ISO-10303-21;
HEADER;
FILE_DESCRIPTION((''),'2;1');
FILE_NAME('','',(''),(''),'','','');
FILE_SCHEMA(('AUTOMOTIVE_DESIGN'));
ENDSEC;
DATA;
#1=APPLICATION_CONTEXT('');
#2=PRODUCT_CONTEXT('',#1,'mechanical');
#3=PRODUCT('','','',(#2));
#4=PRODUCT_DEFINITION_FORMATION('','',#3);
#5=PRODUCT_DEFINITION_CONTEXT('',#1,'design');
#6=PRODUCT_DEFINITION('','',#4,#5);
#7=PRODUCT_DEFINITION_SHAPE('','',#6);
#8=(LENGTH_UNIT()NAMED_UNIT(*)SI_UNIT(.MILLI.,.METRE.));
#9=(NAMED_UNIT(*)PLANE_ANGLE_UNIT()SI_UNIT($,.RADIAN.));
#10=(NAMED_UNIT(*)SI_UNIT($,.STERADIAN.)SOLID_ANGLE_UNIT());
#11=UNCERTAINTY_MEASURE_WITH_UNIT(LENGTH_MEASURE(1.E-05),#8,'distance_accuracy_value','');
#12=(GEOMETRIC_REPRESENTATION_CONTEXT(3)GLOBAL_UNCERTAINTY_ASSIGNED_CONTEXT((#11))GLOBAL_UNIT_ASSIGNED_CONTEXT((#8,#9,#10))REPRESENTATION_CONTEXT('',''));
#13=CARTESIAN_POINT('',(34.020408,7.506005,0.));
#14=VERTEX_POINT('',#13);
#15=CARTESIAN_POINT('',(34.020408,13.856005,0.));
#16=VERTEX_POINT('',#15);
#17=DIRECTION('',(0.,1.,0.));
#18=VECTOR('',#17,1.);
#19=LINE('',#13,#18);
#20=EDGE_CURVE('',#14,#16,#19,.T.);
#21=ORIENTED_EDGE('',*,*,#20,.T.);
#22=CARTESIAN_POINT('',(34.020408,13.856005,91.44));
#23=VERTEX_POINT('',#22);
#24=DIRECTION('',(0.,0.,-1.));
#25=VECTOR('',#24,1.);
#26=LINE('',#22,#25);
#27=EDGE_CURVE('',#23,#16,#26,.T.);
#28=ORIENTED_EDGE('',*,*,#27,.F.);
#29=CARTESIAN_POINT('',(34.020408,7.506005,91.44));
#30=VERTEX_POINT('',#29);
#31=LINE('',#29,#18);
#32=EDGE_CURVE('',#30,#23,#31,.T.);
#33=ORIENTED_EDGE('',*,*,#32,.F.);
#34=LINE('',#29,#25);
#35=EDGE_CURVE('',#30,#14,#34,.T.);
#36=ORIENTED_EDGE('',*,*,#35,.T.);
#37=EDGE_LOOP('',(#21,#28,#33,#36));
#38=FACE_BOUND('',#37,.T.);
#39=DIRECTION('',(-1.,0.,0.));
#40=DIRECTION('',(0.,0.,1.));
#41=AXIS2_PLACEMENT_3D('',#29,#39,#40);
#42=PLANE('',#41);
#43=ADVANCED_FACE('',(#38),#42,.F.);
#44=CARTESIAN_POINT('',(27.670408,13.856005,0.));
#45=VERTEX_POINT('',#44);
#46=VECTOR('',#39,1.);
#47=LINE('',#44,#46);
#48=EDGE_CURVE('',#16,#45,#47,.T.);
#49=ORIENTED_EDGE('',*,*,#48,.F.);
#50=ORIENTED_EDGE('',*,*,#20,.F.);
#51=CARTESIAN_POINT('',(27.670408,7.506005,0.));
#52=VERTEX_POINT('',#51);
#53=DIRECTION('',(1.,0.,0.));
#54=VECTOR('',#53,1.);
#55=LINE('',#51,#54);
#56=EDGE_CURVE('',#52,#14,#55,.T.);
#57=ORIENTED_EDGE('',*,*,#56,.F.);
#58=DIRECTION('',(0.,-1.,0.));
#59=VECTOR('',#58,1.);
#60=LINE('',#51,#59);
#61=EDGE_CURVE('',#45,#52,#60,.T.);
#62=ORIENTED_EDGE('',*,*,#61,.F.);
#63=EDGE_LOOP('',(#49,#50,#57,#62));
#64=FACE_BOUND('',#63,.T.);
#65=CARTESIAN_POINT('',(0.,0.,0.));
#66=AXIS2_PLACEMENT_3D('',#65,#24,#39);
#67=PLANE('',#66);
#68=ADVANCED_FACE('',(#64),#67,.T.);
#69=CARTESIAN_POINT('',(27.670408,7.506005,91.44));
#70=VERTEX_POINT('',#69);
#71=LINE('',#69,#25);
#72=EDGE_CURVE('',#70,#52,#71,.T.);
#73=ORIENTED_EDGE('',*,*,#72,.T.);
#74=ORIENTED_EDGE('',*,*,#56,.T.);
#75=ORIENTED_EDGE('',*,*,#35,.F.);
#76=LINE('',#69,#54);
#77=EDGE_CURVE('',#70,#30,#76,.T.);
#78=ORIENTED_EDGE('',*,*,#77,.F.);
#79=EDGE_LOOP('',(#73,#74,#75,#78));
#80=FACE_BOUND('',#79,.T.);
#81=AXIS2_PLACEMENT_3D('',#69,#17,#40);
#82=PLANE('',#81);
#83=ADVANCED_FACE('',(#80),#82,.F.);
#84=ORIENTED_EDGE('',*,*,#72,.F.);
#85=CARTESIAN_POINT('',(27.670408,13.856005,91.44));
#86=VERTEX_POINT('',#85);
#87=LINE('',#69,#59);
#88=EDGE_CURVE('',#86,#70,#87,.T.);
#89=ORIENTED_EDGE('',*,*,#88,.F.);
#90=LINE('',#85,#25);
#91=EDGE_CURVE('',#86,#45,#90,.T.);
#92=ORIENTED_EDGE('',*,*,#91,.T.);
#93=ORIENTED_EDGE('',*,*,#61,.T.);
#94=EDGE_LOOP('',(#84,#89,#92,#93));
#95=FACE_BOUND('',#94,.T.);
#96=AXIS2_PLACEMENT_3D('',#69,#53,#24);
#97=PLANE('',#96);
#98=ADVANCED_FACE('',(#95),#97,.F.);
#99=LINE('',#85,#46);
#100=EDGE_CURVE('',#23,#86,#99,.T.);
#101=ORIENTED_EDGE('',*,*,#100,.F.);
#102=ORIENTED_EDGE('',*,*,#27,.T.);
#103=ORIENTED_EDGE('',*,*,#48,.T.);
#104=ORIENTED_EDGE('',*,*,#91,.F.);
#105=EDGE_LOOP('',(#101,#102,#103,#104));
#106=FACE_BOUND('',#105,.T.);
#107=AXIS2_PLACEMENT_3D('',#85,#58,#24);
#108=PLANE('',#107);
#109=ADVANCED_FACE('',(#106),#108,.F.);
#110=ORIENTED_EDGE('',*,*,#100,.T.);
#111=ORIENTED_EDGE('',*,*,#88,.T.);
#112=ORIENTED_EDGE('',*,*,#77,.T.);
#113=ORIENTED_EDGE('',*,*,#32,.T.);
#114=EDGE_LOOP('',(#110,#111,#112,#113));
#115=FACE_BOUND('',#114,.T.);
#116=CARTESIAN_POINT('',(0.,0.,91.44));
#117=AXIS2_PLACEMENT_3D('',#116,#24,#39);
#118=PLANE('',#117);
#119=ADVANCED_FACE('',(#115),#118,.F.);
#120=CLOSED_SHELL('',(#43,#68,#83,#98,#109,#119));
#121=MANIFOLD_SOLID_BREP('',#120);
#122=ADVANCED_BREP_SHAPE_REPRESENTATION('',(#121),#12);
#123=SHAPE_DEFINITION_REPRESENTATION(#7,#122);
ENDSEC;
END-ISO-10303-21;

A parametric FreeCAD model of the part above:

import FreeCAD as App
import Part
import Sketcher

V = App.Vector
Q = App.Units.Quantity

doc = App.newDocument("Part")
body = doc.addObject("PartDesign::Body", "Body")

# Sketch on XY plane
sketch1 = body.newObject("Sketcher::SketchObject", "Sketch")
sketch1.AttachmentSupport = (doc.getObject("XY_Plane"), [""])
sketch1.MapMode = "FlatFace"
sketch1.addGeometry([
    Part.LineSegment(V(27.670408, 13.856005, 0), V(27.670408, 7.506005, 0)),
    Part.LineSegment(V(27.670408, 7.506005, 0), V(34.020408, 7.506005, 0)),
    Part.LineSegment(V(34.020408, 7.506005, 0), V(34.020408, 13.856005, 0)),
    Part.LineSegment(V(34.020408, 13.856005, 0), V(27.670408, 13.856005, 0)),
], False)
sketch1.addConstraint([
    Sketcher.Constraint("Coincident", 0, 2, 1, 1),
    Sketcher.Constraint("Coincident", 1, 2, 2, 1),
    Sketcher.Constraint("Coincident", 2, 2, 3, 1),
    Sketcher.Constraint("Coincident", 3, 2, 0, 1),
    Sketcher.Constraint("Vertical", 0),
    Sketcher.Constraint("Horizontal", 1),
    Sketcher.Constraint("Vertical", 2),
    Sketcher.Constraint("Horizontal", 3),
    Sketcher.Constraint("Equal", 3, 0),
    Sketcher.Constraint("DistanceX", 1, 1, 1, 2, Q("0.25 in")),
    Sketcher.Constraint("DistanceX", -1, 1, 0, 2, 27.670408),
    Sketcher.Constraint("DistanceY", -1, 1, 0, 2, 7.506005),
])
pad1 = body.newObject("PartDesign::Pad", "Pad")
pad1.Profile = sketch1
pad1.Length = Q("3.6 in")

doc.recompute()
